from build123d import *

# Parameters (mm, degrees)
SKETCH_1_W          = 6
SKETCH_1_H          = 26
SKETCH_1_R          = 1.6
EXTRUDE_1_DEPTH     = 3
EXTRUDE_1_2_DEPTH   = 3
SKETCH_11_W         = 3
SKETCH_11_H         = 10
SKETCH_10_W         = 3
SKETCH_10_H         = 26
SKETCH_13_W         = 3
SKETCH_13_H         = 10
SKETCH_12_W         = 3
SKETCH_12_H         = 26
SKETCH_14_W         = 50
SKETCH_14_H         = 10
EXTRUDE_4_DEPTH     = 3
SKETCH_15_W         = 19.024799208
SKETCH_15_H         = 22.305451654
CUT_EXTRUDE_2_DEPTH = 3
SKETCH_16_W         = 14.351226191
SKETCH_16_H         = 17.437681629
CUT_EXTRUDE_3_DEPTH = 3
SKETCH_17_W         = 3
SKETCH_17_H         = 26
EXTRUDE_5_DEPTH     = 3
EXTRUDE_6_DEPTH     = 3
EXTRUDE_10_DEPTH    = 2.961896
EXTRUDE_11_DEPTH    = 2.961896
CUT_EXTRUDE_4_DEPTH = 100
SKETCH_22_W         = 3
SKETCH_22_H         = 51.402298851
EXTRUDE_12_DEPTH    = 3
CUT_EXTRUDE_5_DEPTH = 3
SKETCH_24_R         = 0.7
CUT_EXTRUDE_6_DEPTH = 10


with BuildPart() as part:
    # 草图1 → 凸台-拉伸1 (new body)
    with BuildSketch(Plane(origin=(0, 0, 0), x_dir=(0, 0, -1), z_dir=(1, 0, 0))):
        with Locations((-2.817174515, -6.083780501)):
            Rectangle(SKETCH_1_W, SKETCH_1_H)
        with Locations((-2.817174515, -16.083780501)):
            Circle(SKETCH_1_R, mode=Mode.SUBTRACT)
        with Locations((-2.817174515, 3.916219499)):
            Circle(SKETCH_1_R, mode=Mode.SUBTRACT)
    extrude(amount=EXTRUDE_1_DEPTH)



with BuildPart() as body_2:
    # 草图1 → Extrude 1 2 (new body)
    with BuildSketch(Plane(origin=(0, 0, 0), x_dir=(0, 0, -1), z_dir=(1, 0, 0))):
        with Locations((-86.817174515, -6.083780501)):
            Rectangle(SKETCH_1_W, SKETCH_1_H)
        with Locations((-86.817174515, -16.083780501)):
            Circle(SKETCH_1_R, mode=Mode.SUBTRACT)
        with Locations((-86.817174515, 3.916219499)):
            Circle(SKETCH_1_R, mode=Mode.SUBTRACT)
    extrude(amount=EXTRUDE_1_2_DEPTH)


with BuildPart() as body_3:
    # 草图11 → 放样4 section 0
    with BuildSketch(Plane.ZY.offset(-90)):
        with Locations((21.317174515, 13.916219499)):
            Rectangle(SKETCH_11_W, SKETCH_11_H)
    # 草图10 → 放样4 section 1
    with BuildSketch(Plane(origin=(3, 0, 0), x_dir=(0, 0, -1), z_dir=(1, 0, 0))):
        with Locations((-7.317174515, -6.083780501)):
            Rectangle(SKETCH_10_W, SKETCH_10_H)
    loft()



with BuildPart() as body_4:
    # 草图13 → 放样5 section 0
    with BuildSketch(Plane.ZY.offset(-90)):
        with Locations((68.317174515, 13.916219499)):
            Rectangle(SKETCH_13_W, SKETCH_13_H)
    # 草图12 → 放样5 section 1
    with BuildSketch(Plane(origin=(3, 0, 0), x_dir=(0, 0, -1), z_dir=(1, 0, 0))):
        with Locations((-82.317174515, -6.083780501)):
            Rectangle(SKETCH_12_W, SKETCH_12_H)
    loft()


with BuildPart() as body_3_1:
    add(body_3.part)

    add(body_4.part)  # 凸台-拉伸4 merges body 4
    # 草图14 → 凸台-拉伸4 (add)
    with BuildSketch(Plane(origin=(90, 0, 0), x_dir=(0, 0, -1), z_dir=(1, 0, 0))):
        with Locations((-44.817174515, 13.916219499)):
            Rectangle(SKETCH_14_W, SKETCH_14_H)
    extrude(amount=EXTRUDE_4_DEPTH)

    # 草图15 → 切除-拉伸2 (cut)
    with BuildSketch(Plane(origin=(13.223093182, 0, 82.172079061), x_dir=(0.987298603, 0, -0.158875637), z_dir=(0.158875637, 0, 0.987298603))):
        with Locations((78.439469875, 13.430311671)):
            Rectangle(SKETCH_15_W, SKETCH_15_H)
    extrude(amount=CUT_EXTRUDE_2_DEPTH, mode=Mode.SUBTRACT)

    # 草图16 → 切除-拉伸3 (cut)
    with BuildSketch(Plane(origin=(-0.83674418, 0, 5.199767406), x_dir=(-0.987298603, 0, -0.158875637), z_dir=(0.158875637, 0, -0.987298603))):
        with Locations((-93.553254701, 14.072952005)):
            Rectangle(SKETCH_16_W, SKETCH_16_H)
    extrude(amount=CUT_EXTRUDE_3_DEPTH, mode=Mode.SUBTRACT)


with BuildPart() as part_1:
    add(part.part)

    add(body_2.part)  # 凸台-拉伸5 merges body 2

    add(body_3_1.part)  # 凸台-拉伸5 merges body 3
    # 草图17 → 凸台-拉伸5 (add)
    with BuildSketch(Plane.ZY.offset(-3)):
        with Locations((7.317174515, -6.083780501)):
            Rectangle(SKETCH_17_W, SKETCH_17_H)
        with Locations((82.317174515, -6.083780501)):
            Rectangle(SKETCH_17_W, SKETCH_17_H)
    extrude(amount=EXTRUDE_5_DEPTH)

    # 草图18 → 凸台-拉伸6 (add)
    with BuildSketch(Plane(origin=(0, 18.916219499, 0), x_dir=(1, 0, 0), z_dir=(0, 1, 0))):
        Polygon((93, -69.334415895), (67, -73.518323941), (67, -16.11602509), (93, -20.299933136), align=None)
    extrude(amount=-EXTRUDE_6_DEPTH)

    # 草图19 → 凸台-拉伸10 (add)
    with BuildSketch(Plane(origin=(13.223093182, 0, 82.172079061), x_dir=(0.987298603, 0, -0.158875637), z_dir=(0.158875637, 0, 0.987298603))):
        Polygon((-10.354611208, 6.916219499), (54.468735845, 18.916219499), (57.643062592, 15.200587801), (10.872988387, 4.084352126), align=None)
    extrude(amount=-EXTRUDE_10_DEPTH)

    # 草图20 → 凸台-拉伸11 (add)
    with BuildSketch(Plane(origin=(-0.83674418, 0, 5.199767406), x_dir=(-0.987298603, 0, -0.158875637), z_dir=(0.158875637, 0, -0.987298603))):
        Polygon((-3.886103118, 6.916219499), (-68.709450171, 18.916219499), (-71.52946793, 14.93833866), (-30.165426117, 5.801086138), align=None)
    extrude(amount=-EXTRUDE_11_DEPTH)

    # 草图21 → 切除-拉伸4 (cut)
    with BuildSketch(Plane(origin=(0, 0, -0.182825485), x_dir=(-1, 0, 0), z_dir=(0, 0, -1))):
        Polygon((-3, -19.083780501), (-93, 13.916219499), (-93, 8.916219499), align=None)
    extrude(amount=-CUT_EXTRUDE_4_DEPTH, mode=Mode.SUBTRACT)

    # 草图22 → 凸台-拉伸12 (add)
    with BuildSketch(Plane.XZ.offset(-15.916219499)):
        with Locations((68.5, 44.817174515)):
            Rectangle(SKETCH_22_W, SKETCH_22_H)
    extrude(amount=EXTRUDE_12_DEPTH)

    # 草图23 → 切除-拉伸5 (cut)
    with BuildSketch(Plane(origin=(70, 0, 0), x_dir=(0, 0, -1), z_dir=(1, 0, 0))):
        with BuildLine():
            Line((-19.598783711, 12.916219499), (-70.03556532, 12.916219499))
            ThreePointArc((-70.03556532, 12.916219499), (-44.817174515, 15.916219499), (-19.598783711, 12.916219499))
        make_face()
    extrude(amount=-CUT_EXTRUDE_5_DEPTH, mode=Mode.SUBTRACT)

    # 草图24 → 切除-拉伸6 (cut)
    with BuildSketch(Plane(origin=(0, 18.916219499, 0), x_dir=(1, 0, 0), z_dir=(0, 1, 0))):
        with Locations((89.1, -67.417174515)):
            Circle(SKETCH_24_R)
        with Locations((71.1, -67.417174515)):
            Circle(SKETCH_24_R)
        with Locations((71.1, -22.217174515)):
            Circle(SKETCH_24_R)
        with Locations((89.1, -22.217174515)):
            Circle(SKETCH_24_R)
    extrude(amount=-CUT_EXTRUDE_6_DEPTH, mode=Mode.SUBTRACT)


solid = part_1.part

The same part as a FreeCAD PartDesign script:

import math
import FreeCAD as App
import Part
import Sketcher

V = App.Vector
Q = App.Units.Quantity

doc = App.newDocument("Part")
params = doc.addObject("Spreadsheet::Sheet", "Params")
for row, (alias, value) in enumerate([
    ("sketch1_diameter", "3.2 mm"),
    ("sketch1_width", "26 mm"),
    ("sketch1_height", "6 mm"),
    ("pad1_length", "3 mm"),
    ("sketch2_diameter", "3.2 mm"),
    ("sketch2_width", "26 mm"),
    ("sketch2_height", "6 mm"),
    ("pad2_length", "3 mm"),
    ("sketch3_width", "10 mm"),
    ("sketch3_height", "3 mm"),
    ("sketch4_width", "26 mm"),
    ("sketch4_height", "3 mm"),
    ("sketch5_width", "10 mm"),
    ("sketch5_height", "3 mm"),
    ("sketch6_width", "26 mm"),
    ("sketch6_height", "3 mm"),
    ("sketch7_width", "10 mm"),
    ("sketch7_height", "50 mm"),
    ("pad3_length", "3 mm"),
    ("pocket1_length", "3 mm"),
    ("pocket2_length", "3 mm"),
    ("sketch10_width", "26 mm"),
    ("sketch10_height", "3 mm"),
    ("pad4_length", "3 mm"),
    ("pad5_length", "3 mm"),
    ("pad6_length", "2.961896 mm"),
    ("pad7_length", "2.961896 mm"),
    ("sketch14_height", "5 mm"),
    ("pocket3_length", "100 mm"),
    ("sketch15_width", "3 mm"),
    ("pad8_length", "3 mm"),
    ("pocket4_length", "3 mm"),
    ("sketch17_diameter", "1.4 mm"),
    ("pocket5_length", "10 mm"),
], start=1):
    params.set(f"A{row}", alias)
    params.set(f"B{row}", "=" + value)
    params.setAlias(f"B{row}", alias)

body = doc.addObject("PartDesign::Body", "Body")

# Sketch on YZ plane
sketch1 = body.newObject("Sketcher::SketchObject", "Sketch")
sketch1.AttachmentSupport = (doc.getObject("YZ_Plane"), [""])
sketch1.MapMode = "FlatFace"
sketch1.addGeometry([
    Part.LineSegment(V(6.916219, 5.817175, 0), V(-19.083781, 5.817175, 0)),  # 0
    Part.LineSegment(V(-19.083781, 5.817175, 0), V(-19.083781, -0.182825, 0)),  # 1
    Part.LineSegment(V(-19.083781, -0.182825, 0), V(6.916219, -0.182825, 0)),  # 2
    Part.LineSegment(V(6.916219, -0.182825, 0), V(6.916219, 5.817175, 0)),  # 3
    Part.Circle(V(-16.083781, 2.817175, 0), V(0, 0, 1), 1.6),  # 4
    Part.Circle(V(3.916219, 2.817175, 0), V(0, 0, 1), 1.6),  # 5
], False)
sketch1.addConstraint([
    Sketcher.Constraint("Coincident", 0, 2, 1, 1),
    Sketcher.Constraint("Coincident", 1, 2, 2, 1),
    Sketcher.Constraint("Coincident", 2, 2, 3, 1),
    Sketcher.Constraint("Coincident", 3, 2, 0, 1),
    Sketcher.Constraint("Horizontal", 0),
    Sketcher.Constraint("Vertical", 1),
    Sketcher.Constraint("Horizontal", 2),
    Sketcher.Constraint("Vertical", 3),
    Sketcher.Constraint("Equal", 4, 5),
    Sketcher.Constraint("Horizontal", 4, 3, 5, 3),
    Sketcher.Constraint("Diameter", 4, Q("3.2 mm")),
    Sketcher.Constraint("DistanceX", 0, 2, 0, 1, Q("26 mm")),
    Sketcher.Constraint("DistanceY", 1, 2, 1, 1, Q("6 mm")),
    Sketcher.Constraint("DistanceX", 4, 3, 5, 3, Q("20 mm")),
    Sketcher.Constraint("DistanceX", 0, 2, 4, 3, Q("3 mm")),
    Sketcher.Constraint("DistanceY", 4, 3, 0, 2, Q("3 mm")),
    Sketcher.Constraint("DistanceX", 4, 3, -1, 1, Q("16.083781 mm")),
    Sketcher.Constraint("DistanceY", -1, 1, 4, 3, Q("2.817175 mm")),
])
sketch1.setExpression("Constraints[10]", "Params.sketch1_diameter")
sketch1.setExpression("Constraints[11]", "Params.sketch1_width")
sketch1.setExpression("Constraints[12]", "Params.sketch1_height")
pad1 = body.newObject("PartDesign::Pad", "Pad")
pad1.Profile = sketch1
pad1.setExpression("Length", "Params.pad1_length")
body2 = doc.addObject("PartDesign::Body", "Body001")

# Sketch on YZ plane
sketch2 = body2.newObject("Sketcher::SketchObject", "Sketch001")
sketch2.AttachmentSupport = (doc.getObject("YZ_Plane001"), [""])
sketch2.MapMode = "FlatFace"
sketch2.addGeometry([
    Part.LineSegment(V(6.916219, 89.817175, 0), V(-19.083781, 89.817175, 0)),  # 0
    Part.LineSegment(V(-19.083781, 89.817175, 0), V(-19.083781, 83.817175, 0)),  # 1
    Part.LineSegment(V(-19.083781, 83.817175, 0), V(6.916219, 83.817175, 0)),  # 2
    Part.LineSegment(V(6.916219, 83.817175, 0), V(6.916219, 89.817175, 0)),  # 3
    Part.Circle(V(-16.083781, 86.817175, 0), V(0, 0, 1), 1.6),  # 4
    Part.Circle(V(3.916219, 86.817175, 0), V(0, 0, 1), 1.6),  # 5
], False)
sketch2.addConstraint([
    Sketcher.Constraint("Coincident", 0, 2, 1, 1),
    Sketcher.Constraint("Coincident", 1, 2, 2, 1),
    Sketcher.Constraint("Coincident", 2, 2, 3, 1),
    Sketcher.Constraint("Coincident", 3, 2, 0, 1),
    Sketcher.Constraint("Horizontal", 0),
    Sketcher.Constraint("Vertical", 1),
    Sketcher.Constraint("Horizontal", 2),
    Sketcher.Constraint("Vertical", 3),
    Sketcher.Constraint("Equal", 4, 5),
    Sketcher.Constraint("Horizontal", 4, 3, 5, 3),
    Sketcher.Constraint("Diameter", 4, Q("3.2 mm")),
    Sketcher.Constraint("DistanceX", 0, 2, 0, 1, Q("26 mm")),
    Sketcher.Constraint("DistanceY", 1, 2, 1, 1, Q("6 mm")),
    Sketcher.Constraint("DistanceX", 4, 3, 5, 3, Q("20 mm")),
    Sketcher.Constraint("DistanceX", 0, 2, 4, 3, Q("3 mm")),
    Sketcher.Constraint("DistanceY", 4, 3, 0, 2, Q("3 mm")),
    Sketcher.Constraint("DistanceX", 4, 3, -1, 1, Q("16.083781 mm")),
    Sketcher.Constraint("DistanceY", -1, 1, 4, 3, Q("86.817175 mm")),
])
sketch2.setExpression("Constraints[10]", "Params.sketch2_diameter")
sketch2.setExpression("Constraints[11]", "Params.sketch2_width")
sketch2.setExpression("Constraints[12]", "Params.sketch2_height")
pad2 = body2.newObject("PartDesign::Pad", "Pad001")
pad2.Profile = sketch2
pad2.setExpression("Length", "Params.pad2_length")
body3 = doc.addObject("PartDesign::Body", "Body002")

# Sketch on YZ plane
sketch3 = body3.newObject("Sketcher::SketchObject", "Sketch002")
sketch3.AttachmentSupport = (doc.getObject("YZ_Plane002"), [""])
sketch3.MapMode = "FlatFace"
sketch3.AttachmentOffset = App.Placement(V(0, 0, 90), App.Rotation())
sketch3.addGeometry([
    Part.LineSegment(V(18.916219, 19.817175, 0), V(8.916219, 19.817175, 0)),
    Part.LineSegment(V(8.916219, 19.817175, 0), V(8.916219, 22.817175, 0)),
    Part.LineSegment(V(8.916219, 22.817175, 0), V(18.916219, 22.817175, 0)),
    Part.LineSegment(V(18.916219, 22.817175, 0), V(18.916219, 19.817175, 0)),
], False)
sketch3.addConstraint([
    Sketcher.Constraint("Coincident", 0, 2, 1, 1),
    Sketcher.Constraint("Coincident", 1, 2, 2, 1),
    Sketcher.Constraint("Coincident", 2, 2, 3, 1),
    Sketcher.Constraint("Coincident", 3, 2, 0, 1),
    Sketcher.Constraint("Horizontal", 0),
    Sketcher.Constraint("Vertical", 1),
    Sketcher.Constraint("Horizontal", 2),
    Sketcher.Constraint("Vertical", 3),
    Sketcher.Constraint("DistanceX", 0, 2, 0, 1, Q("10 mm")),
    Sketcher.Constraint("DistanceY", 1, 1, 1, 2, Q("3 mm")),
    Sketcher.Constraint("DistanceX", -1, 1, 0, 2, Q("8.916219 mm")),
    Sketcher.Constraint("DistanceY", -1, 1, 0, 2, Q("19.817175 mm")),
])
sketch3.setExpression("Constraints[8]", "Params.sketch3_width")
sketch3.setExpression("Constraints[9]", "Params.sketch3_height")

# Sketch on YZ plane
sketch4 = body3.newObject("Sketcher::SketchObject", "Sketch003")
sketch4.AttachmentSupport = (doc.getObject("YZ_Plane002"), [""])
sketch4.MapMode = "FlatFace"
sketch4.AttachmentOffset = App.Placement(V(0, 0, 3), App.Rotation())
sketch4.addGeometry([
    Part.LineSegment(V(6.916219, 8.817175, 0), V(-19.083781, 8.817175, 0)),
    Part.LineSegment(V(-19.083781, 8.817175, 0), V(-19.083781, 5.817175, 0)),
    Part.LineSegment(V(-19.083781, 5.817175, 0), V(6.916219, 5.817175, 0)),
    Part.LineSegment(V(6.916219, 5.817175, 0), V(6.916219, 8.817175, 0)),
], False)
sketch4.addConstraint([
    Sketcher.Constraint("Coincident", 0, 2, 1, 1),
    Sketcher.Constraint("Coincident", 1, 2, 2, 1),
    Sketcher.Constraint("Coincident", 2, 2, 3, 1),
    Sketcher.Constraint("Coincident", 3, 2, 0, 1),
    Sketcher.Constraint("Horizontal", 0),
    Sketcher.Constraint("Vertical", 1),
    Sketcher.Constraint("Horizontal", 2),
    Sketcher.Constraint("Vertical", 3),
    Sketcher.Constraint("DistanceX", 0, 2, 0, 1, Q("26 mm")),
    Sketcher.Constraint("DistanceY", 1, 2, 1, 1, Q("3 mm")),
    Sketcher.Constraint("DistanceX", 0, 2, -1, 1, Q("19.083781 mm")),
    Sketcher.Constraint("DistanceY", -1, 1, 0, 2, Q("8.817175 mm")),
])
sketch4.setExpression("Constraints[8]", "Params.sketch4_width")
sketch4.setExpression("Constraints[9]", "Params.sketch4_height")

additiveloft = body3.newObject("PartDesign::AdditiveLoft", "AdditiveLoft")
additiveloft.Profile = sketch3
additiveloft.Sections = [sketch4]
body4 = doc.addObject("PartDesign::Body", "Body003")

# Sketch on YZ plane
sketch5 = body4.newObject("Sketcher::SketchObject", "Sketch004")
sketch5.AttachmentSupport = (doc.getObject("YZ_Plane003"), [""])
sketch5.MapMode = "FlatFace"
sketch5.AttachmentOffset = App.Placement(V(0, 0, 90), App.Rotation())
sketch5.addGeometry([
    Part.LineSegment(V(18.916219, 66.817175, 0), V(8.916219, 66.817175, 0)),
    Part.LineSegment(V(8.916219, 66.817175, 0), V(8.916219, 69.817175, 0)),
    Part.LineSegment(V(8.916219, 69.817175, 0), V(18.916219, 69.817175, 0)),
    Part.LineSegment(V(18.916219, 69.817175, 0), V(18.916219, 66.817175, 0)),
], False)
sketch5.addConstraint([
    Sketcher.Constraint("Coincident", 0, 2, 1, 1),
    Sketcher.Constraint("Coincident", 1, 2, 2, 1),
    Sketcher.Constraint("Coincident", 2, 2, 3, 1),
    Sketcher.Constraint("Coincident", 3, 2, 0, 1),
    Sketcher.Constraint("Horizontal", 0),
    Sketcher.Constraint("Vertical", 1),
    Sketcher.Constraint("Horizontal", 2),
    Sketcher.Constraint("Vertical", 3),
    Sketcher.Constraint("DistanceX", 0, 2, 0, 1, Q("10 mm")),
    Sketcher.Constraint("DistanceY", 1, 1, 1, 2, Q("3 mm")),
    Sketcher.Constraint("DistanceX", -1, 1, 0, 2, Q("8.916219 mm")),
    Sketcher.Constraint("DistanceY", -1, 1, 0, 2, Q("66.817175 mm")),
])
sketch5.setExpression("Constraints[8]", "Params.sketch5_width")
sketch5.setExpression("Constraints[9]", "Params.sketch5_height")

# Sketch on YZ plane
sketch6 = body4.newObject("Sketcher::SketchObject", "Sketch005")
sketch6.AttachmentSupport = (doc.getObject("YZ_Plane003"), [""])
sketch6.MapMode = "FlatFace"
sketch6.AttachmentOffset = App.Placement(V(0, 0, 3), App.Rotation())
sketch6.addGeometry([
    Part.LineSegment(V(6.916219, 83.817175, 0), V(-19.083781, 83.817175, 0)),
    Part.LineSegment(V(-19.083781, 83.817175, 0), V(-19.083781, 80.817175, 0)),
    Part.LineSegment(V(-19.083781, 80.817175, 0), V(6.916219, 80.817175, 0)),
    Part.LineSegment(V(6.916219, 80.817175, 0), V(6.916219, 83.817175, 0)),
], False)
sketch6.addConstraint([
    Sketcher.Constraint("Coincident", 0, 2, 1, 1),
    Sketcher.Constraint("Coincident", 1, 2, 2, 1),
    Sketcher.Constraint("Coincident", 2, 2, 3, 1),
    Sketcher.Constraint("Coincident", 3, 2, 0, 1),
    Sketcher.Constraint("Horizontal", 0),
    Sketcher.Constraint("Vertical", 1),
    Sketcher.Constraint("Horizontal", 2),
    Sketcher.Constraint("Vertical", 3),
    Sketcher.Constraint("DistanceX", 0, 2, 0, 1, Q("26 mm")),
    Sketcher.Constraint("DistanceY", 1, 2, 1, 1, Q("3 mm")),
    Sketcher.Constraint("DistanceX", 0, 2, -1, 1, Q("19.083781 mm")),
    Sketcher.Constraint("DistanceY", -1, 1, 0, 2, Q("83.817175 mm")),
])
sketch6.setExpression("Constraints[8]", "Params.sketch6_width")
sketch6.setExpression("Constraints[9]", "Params.sketch6_height")

additiveloft2 = body4.newObject("PartDesign::AdditiveLoft", "AdditiveLoft001")
additiveloft2.Profile = sketch5
additiveloft2.Sections = [sketch6]
body3.AllowCompound = True
doc.recompute()

boolean = body3.newObject("PartDesign::Boolean", "Boolean")
boolean.Type = "Fuse"
boolean.addObjects([body4])

# Sketch on YZ plane
sketch7 = body3.newObject("Sketcher::SketchObject", "Sketch006")
sketch7.AttachmentSupport = (doc.getObject("YZ_Plane002"), [""])
sketch7.MapMode = "FlatFace"
sketch7.AttachmentOffset = App.Placement(V(0, 0, 90), App.Rotation())
sketch7.addGeometry([
    Part.LineSegment(V(18.916219, 69.817175, 0), V(8.916219, 69.817175, 0)),
    Part.LineSegment(V(8.916219, 69.817175, 0), V(8.916219, 19.817175, 0)),
    Part.LineSegment(V(8.916219, 19.817175, 0), V(18.916219, 19.817175, 0)),
    Part.LineSegment(V(18.916219, 19.817175, 0), V(18.916219, 69.817175, 0)),
], False)
sketch7.addConstraint([
    Sketcher.Constraint("Coincident", 0, 2, 1, 1),
    Sketcher.Constraint("Coincident", 1, 2, 2, 1),
    Sketcher.Constraint("Coincident", 2, 2, 3, 1),
    Sketcher.Constraint("Coincident", 3, 2, 0, 1),
    Sketcher.Constraint("Horizontal", 0),
    Sketcher.Constraint("Vertical", 1),
    Sketcher.Constraint("Horizontal", 2),
    Sketcher.Constraint("Vertical", 3),
    Sketcher.Constraint("DistanceX", 0, 2, 0, 1, Q("10 mm")),
    Sketcher.Constraint("DistanceY", 1, 2, 1, 1, Q("50 mm")),
    Sketcher.Constraint("DistanceX", -1, 1, 0, 2, Q("8.916219 mm")),
    Sketcher.Constraint("DistanceY", -1, 1, 0, 2, Q("69.817175 mm")),
])
sketch7.setExpression("Constraints[8]", "Params.sketch7_width")
sketch7.setExpression("Constraints[9]", "Params.sketch7_height")
pad3 = body3.newObject("PartDesign::Pad", "Pad002")
pad3.Profile = sketch7
pad3.setExpression("Length", "Params.pad3_length")

# Sketch on an angled plane
sketch8 = body3.newObject("Sketcher::SketchObject", "Sketch007")
sketch8.Placement = App.Placement(V(13.223093, 0, 82.172079), App.Rotation(V(0.987298603, 0, -0.158875637), V(0, 1, 0), V(0.158875637, 0, 0.987298603), "ZXY"))
sketch8.addGeometry([
    Part.LineSegment(V(68.92707, 24.583037, 0), V(68.92707, 2.277586, 0)),
    Part.LineSegment(V(68.92707, 2.277586, 0), V(87.951869, 2.277586, 0)),
    Part.LineSegment(V(87.951869, 2.277586, 0), V(87.951869, 24.583037, 0)),
    Part.LineSegment(V(87.951869, 24.583037, 0), V(68.92707, 24.583037, 0)),
], False)
sketch8.addConstraint([
    Sketcher.Constraint("Coincident", 0, 2, 1, 1),
    Sketcher.Constraint("Coincident", 1, 2, 2, 1),
    Sketcher.Constraint("Coincident", 2, 2, 3, 1),
    Sketcher.Constraint("Coincident", 3, 2, 0, 1),
    Sketcher.Constraint("Vertical", 0),
    Sketcher.Constraint("Horizontal", 1),
    Sketcher.Constraint("Vertical", 2),
    Sketcher.Constraint("Horizontal", 3),
    Sketcher.Constraint("DistanceX", 1, 1, 1, 2, Q("19.024799 mm")),
    Sketcher.Constraint("DistanceY", 0, 2, 0, 1, Q("22.305452 mm")),
    Sketcher.Constraint("DistanceX", -1, 1, 0, 2, Q("68.92707 mm")),
    Sketcher.Constraint("DistanceY", -1, 1, 0, 2, Q("2.277586 mm")),
])
pocket1 = body3.newObject("PartDesign::Pocket", "Pocket")
pocket1.Profile = sketch8
pocket1.setExpression("Length", "Params.pocket1_length")
pocket1.Reversed = True

# Sketch on an angled plane
sketch9 = body3.newObject("Sketcher::SketchObject", "Sketch008")
sketch9.Placement = App.Placement(V(-0.836744, 0, 5.199767), App.Rotation(V(-0.987298603, 0, -0.158875637), V(0, 1, 0), V(0.158875637, 0, -0.987298603), "ZXY"))
sketch9.addGeometry([
    Part.LineSegment(V(-100.728868, 22.791793, 0), V(-100.728868, 5.354111, 0)),
    Part.LineSegment(V(-100.728868, 5.354111, 0), V(-86.377642, 5.354111, 0)),
    Part.LineSegment(V(-86.377642, 5.354111, 0), V(-86.377642, 22.791793, 0)),
    Part.LineSegment(V(-86.377642, 22.791793, 0), V(-100.728868, 22.791793, 0)),
], False)
sketch9.addConstraint([
    Sketcher.Constraint("Coincident", 0, 2, 1, 1),
    Sketcher.Constraint("Coincident", 1, 2, 2, 1),
    Sketcher.Constraint("Coincident", 2, 2, 3, 1),
    Sketcher.Constraint("Coincident", 3, 2, 0, 1),
    Sketcher.Constraint("Vertical", 0),
    Sketcher.Constraint("Horizontal", 1),
    Sketcher.Constraint("Vertical", 2),
    Sketcher.Constraint("Horizontal", 3),
    Sketcher.Constraint("DistanceY", 0, 2, 0, 1, Q("17.437682 mm")),
    Sketcher.Constraint("DistanceX", 1, 1, 1, 2, Q("14.351226 mm")),
    Sketcher.Constraint("DistanceY", -1, 1, 0, 2, Q("5.354111 mm")),
    Sketcher.Constraint("DistanceX", 1, 2, -1, 1, Q("86.377642 mm")),
])
pocket2 = body3.newObject("PartDesign::Pocket", "Pocket001")
pocket2.Profile = sketch9
pocket2.setExpression("Length", "Params.pocket2_length")
pocket2.Reversed = True
body.AllowCompound = True
doc.recompute()

boolean2 = body.newObject("PartDesign::Boolean", "Boolean001")
boolean2.Type = "Fuse"
boolean2.addObjects([body2])
doc.recompute()

boolean3 = body.newObject("PartDesign::Boolean", "Boolean002")
boolean3.Type = "Fuse"
boolean3.addObjects([body3])

# Sketch on YZ plane
sketch10 = body.newObject("Sketcher::SketchObject", "Sketch009")
sketch10.AttachmentSupport = (doc.getObject("YZ_Plane"), [""])
sketch10.MapMode = "FlatFace"
sketch10.AttachmentOffset = App.Placement(V(0, 0, 3), App.Rotation())
sketch10.addGeometry([
    Part.LineSegment(V(6.916219, 5.817175, 0), V(-19.083781, 5.817175, 0)),  # 0
    Part.LineSegment(V(-19.083781, 5.817175, 0), V(-19.083781, 8.817175, 0)),  # 1
    Part.LineSegment(V(-19.083781, 8.817175, 0), V(6.916219, 8.817175, 0)),  # 2
    Part.LineSegment(V(6.916219, 8.817175, 0), V(6.916219, 5.817175, 0)),  # 3
    Part.LineSegment(V(6.916219, 80.817175, 0), V(-19.083781, 80.817175, 0)),  # 4
    Part.LineSegment(V(-19.083781, 80.817175, 0), V(-19.083781, 83.817175, 0)),  # 5
    Part.LineSegment(V(-19.083781, 83.817175, 0), V(6.916219, 83.817175, 0)),  # 6
    Part.LineSegment(V(6.916219, 83.817175, 0), V(6.916219, 80.817175, 0)),  # 7
], False)
sketch10.addConstraint([
    Sketcher.Constraint("Coincident", 0, 2, 1, 1),
    Sketcher.Constraint("Coincident", 1, 2, 2, 1),
    Sketcher.Constraint("Coincident", 2, 2, 3, 1),
    Sketcher.Constraint("Coincident", 3, 2, 0, 1),
    Sketcher.Constraint("Coincident", 4, 2, 5, 1),
    Sketcher.Constraint("Coincident", 5, 2, 6, 1),
    Sketcher.Constraint("Coincident", 6, 2, 7, 1),
    Sketcher.Constraint("Coincident", 7, 2, 4, 1),
    Sketcher.Constraint("Horizontal", 0),
    Sketcher.Constraint("Vertical", 1),
    Sketcher.Constraint("Horizontal", 2),
    Sketcher.Constraint("Vertical", 3),
    Sketcher.Constraint("Horizontal", 4),
    Sketcher.Constraint("Vertical", 5),
    Sketcher.Constraint("Horizontal", 6),
    Sketcher.Constraint("Vertical", 7),
    Sketcher.Constraint("Vertical", 1, 2, 4, 2),
    Sketcher.Constraint("Vertical", 3, 2, 6, 2),
    Sketcher.Constraint("Equal", 3, 5),
    Sketcher.Constraint("DistanceX", 0, 2, 0, 1, Q("26 mm")),
    Sketcher.Constraint("DistanceY", 1, 1, 1, 2, Q("3 mm")),
    Sketcher.Constraint("DistanceY", 1, 2, 4, 2, Q("72 mm")),
    Sketcher.Constraint("DistanceX", 0, 2, -1, 1, Q("19.083781 mm")),
    Sketcher.Constraint("DistanceY", -1, 1, 0, 2, Q("5.817175 mm")),
])
sketch10.setExpression("Constraints[19]", "Params.sketch10_width")
sketch10.setExpression("Constraints[20]", "Params.sketch10_height")
pad4 = body.newObject("PartDesign::Pad", "Pad003")
pad4.Profile = sketch10
pad4.setExpression("Length", "Params.pad4_length")
pad4.Reversed = True

# Sketch on XZ plane
sketch11 = body.newObject("Sketcher::SketchObject", "Sketch010")
sketch11.AttachmentSupport = (doc.getObject("XZ_Plane"), [""])
sketch11.MapMode = "FlatFace"
sketch11.AttachmentOffset = App.Placement(V(0, 0, -18.916219), App.Rotation())
sketch11.addGeometry([
    Part.LineSegment(V(67, 73.518324, 0), V(93, 69.334416, 0)),
    Part.LineSegment(V(93, 69.334416, 0), V(93, 20.299933, 0)),
    Part.LineSegment(V(93, 20.299933, 0), V(67, 16.116025, 0)),
    Part.LineSegment(V(67, 16.116025, 0), V(67, 73.518324, 0)),
], False)
sketch11.addConstraint([
    Sketcher.Constraint("Coincident", 0, 2, 1, 1),
    Sketcher.Constraint("Coincident", 1, 2, 2, 1),
    Sketcher.Constraint("Coincident", 2, 2, 3, 1),
    Sketcher.Constraint("Coincident", 3, 2, 0, 1),
    Sketcher.Constraint("Vertical", 1),
    Sketcher.Constraint("Vertical", 3),
    Sketcher.Constraint("Equal", 0, 2),
    Sketcher.Constraint("DistanceX", -1, 1, 0, 2, Q("93 mm")),
    Sketcher.Constraint("DistanceX", -1, 1, 2, 2, Q("67 mm")),
    Sketcher.Constraint("DistanceY", 3, 1, 3, 2, Q("57.402299 mm")),
    Sketcher.Constraint("DistanceY", 1, 2, 1, 1, Q("49.034483 mm")),
    Sketcher.Constraint("DistanceY", -1, 1, 0, 2, Q("69.334416 mm")),
])
pad5 = body.newObject("PartDesign::Pad", "Pad004")
pad5.Profile = sketch11
pad5.setExpression("Length", "Params.pad5_length")

# Sketch on an angled plane
sketch12 = body.newObject("Sketcher::SketchObject", "Sketch011")
sketch12.Placement = App.Placement(V(13.223093, 0, 82.172079), App.Rotation(V(0.987298603, 0, -0.158875637), V(0, 1, 0), V(0.158875637, 0, 0.987298603), "ZXY"))
sketch12.addGeometry([
    Part.LineSegment(V(54.468736, 18.916219, 0), V(-10.354611, 6.916219, 0)),
    Part.LineSegment(V(-10.354611, 6.916219, 0), V(10.872988, 4.084352, 0)),
    Part.LineSegment(V(10.872988, 4.084352, 0), V(57.643063, 15.200588, 0)),
    Part.LineSegment(V(57.643063, 15.200588, 0), V(54.468736, 18.916219, 0)),
], False)
sketch12.addConstraint([
    Sketcher.Constraint("Coincident", 0, 2, 1, 1),
    Sketcher.Constraint("Coincident", 1, 2, 2, 1),
    Sketcher.Constraint("Coincident", 2, 2, 3, 1),
    Sketcher.Constraint("Coincident", 3, 2, 0, 1),
    Sketcher.Constraint("DistanceY", 0, 2, 3, 2, Q("12 mm")),
    Sketcher.Constraint("Distance", 0, Q("65.924702 mm")),
    Sketcher.Constraint("DistanceX", 0, 2, 1, 2, Q("21.2276 mm")),
    Sketcher.Constraint("Distance", 1, Q("21.415659 mm")),
    Sketcher.Constraint("Distance", 2, Q("48.072971 mm")),
    Sketcher.Constraint("Distance", 3, Q("4.886949 mm")),
    Sketcher.Constraint("DistanceX", 0, 2, -1, 1, Q("10.354611 mm")),
    Sketcher.Constraint("DistanceY", -1, 1, 0, 2, Q("6.916219 mm")),
])
pad6 = body.newObject("PartDesign::Pad", "Pad005")
pad6.Profile = sketch12
pad6.setExpression("Length", "Params.pad6_length")
pad6.Reversed = True

# Sketch on an angled plane
sketch13 = body.newObject("Sketcher::SketchObject", "Sketch012")
sketch13.Placement = App.Placement(V(-0.836744, 0, 5.199767), App.Rotation(V(-0.987298603, 0, -0.158875637), V(0, 1, 0), V(0.158875637, 0, -0.987298603), "ZXY"))
sketch13.addGeometry([
    Part.LineSegment(V(-3.886103, 6.916219, 0), V(-68.70945, 18.916219, 0)),
    Part.LineSegment(V(-68.70945, 18.916219, 0), V(-71.529468, 14.938339, 0)),
    Part.LineSegment(V(-71.529468, 14.938339, 0), V(-30.165426, 5.801086, 0)),
    Part.LineSegment(V(-30.165426, 5.801086, 0), V(-3.886103, 6.916219, 0)),
], False)
sketch13.addConstraint([
    Sketcher.Constraint("Coincident", 0, 2, 1, 1),
    Sketcher.Constraint("Coincident", 1, 2, 2, 1),
    Sketcher.Constraint("Coincident", 2, 2, 3, 1),
    Sketcher.Constraint("Coincident", 3, 2, 0, 1),
    Sketcher.Constraint("DistanceY", 3, 2, 0, 2, Q("12 mm")),
    Sketcher.Constraint("Distance", 0, Q("65.924702 mm")),
    Sketcher.Constraint("DistanceX", 0, 2, -1, 1, Q("68.70945 mm")),
    Sketcher.Constraint("DistanceY", -1, 1, 0, 2, Q("18.916219 mm")),
    Sketcher.Constraint("DistanceY", -1, 1, 1, 2, Q("14.938339 mm")),
    Sketcher.Constraint("DistanceX", 1, 2, 2, 2, Q("41.364042 mm")),
    Sketcher.Constraint("Distance", 1, Q("4.876068 mm")),
    Sketcher.Constraint("Distance", 2, Q("42.361224 mm")),
])
pad7 = body.newObject("PartDesign::Pad", "Pad006")
pad7.Profile = sketch13
pad7.setExpression("Length", "Params.pad7_length")
pad7.Reversed = True

# Sketch on XY plane
sketch14 = body.newObject("Sketcher::SketchObject", "Sketch013")
sketch14.AttachmentSupport = (doc.getObject("XY_Plane"), [""])
sketch14.MapMode = "FlatFace"
sketch14.AttachmentOffset = App.Placement(V(0, 0, -0.182825), App.Rotation())
sketch14.addGeometry([
    Part.LineSegment(V(3, -19.083781, 0), V(93, 13.916219, 0)),
    Part.LineSegment(V(93, 13.916219, 0), V(93, 8.916219, 0)),
    Part.LineSegment(V(93, 8.916219, 0), V(3, -19.083781, 0)),
], False)
sketch14.addConstraint([
    Sketcher.Constraint("Coincident", 0, 2, 1, 1),
    Sketcher.Constraint("Coincident", 1, 2, 2, 1),
    Sketcher.Constraint("Coincident", 2, 2, 0, 1),
    Sketcher.Constraint("Vertical", 1),
    Sketcher.Constraint("DistanceY", 1, 2, 1, 1, Q("5 mm")),
    Sketcher.Constraint("DistanceX", -1, 1, 0, 2, Q("93 mm")),
    Sketcher.Constraint("DistanceX", -1, 1, 2, 2, Q("3 mm")),
    Sketcher.Constraint("DistanceY", 2, 2, 1, 2, Q("28 mm")),
    Sketcher.Constraint("DistanceY", -1, 1, 0, 2, Q("13.916219 mm")),
])
sketch14.setExpression("Constraints[4]", "Params.sketch14_height")
pocket3 = body.newObject("PartDesign::Pocket", "Pocket002")
pocket3.Profile = sketch14
pocket3.setExpression("Length", "Params.pocket3_length")
pocket3.Reversed = True

# Sketch on XZ plane
sketch15 = body.newObject("Sketcher::SketchObject", "Sketch014")
sketch15.AttachmentSupport = (doc.getObject("XZ_Plane"), [""])
sketch15.MapMode = "FlatFace"
sketch15.AttachmentOffset = App.Placement(V(0, 0, -15.916219), App.Rotation())
sketch15.addGeometry([
    Part.LineSegment(V(67, 70.518324, 0), V(67, 19.116025, 0)),
    Part.LineSegment(V(67, 19.116025, 0), V(70, 19.116025, 0)),
    Part.LineSegment(V(70, 19.116025, 0), V(70, 70.518324, 0)),
    Part.LineSegment(V(70, 70.518324, 0), V(67, 70.518324, 0)),
], False)
sketch15.addConstraint([
    Sketcher.Constraint("Coincident", 0, 2, 1, 1),
    Sketcher.Constraint("Coincident", 1, 2, 2, 1),
    Sketcher.Constraint("Coincident", 2, 2, 3, 1),
    Sketcher.Constraint("Coincident", 3, 2, 0, 1),
    Sketcher.Constraint("Vertical", 0),
    Sketcher.Constraint("Horizontal", 1),
    Sketcher.Constraint("Vertical", 2),
    Sketcher.Constraint("Horizontal", 3),
    Sketcher.Constraint("DistanceX", 1, 1, 1, 2, Q("3 mm")),
    Sketcher.Constraint("DistanceX", -1, 1, 0, 2, Q("67 mm")),
    Sketcher.Constraint("DistanceY", 0, 2, 0, 1, Q("51.402299 mm")),
    Sketcher.Constraint("DistanceY", -1, 1, 0, 2, Q("19.116025 mm")),
])
sketch15.setExpression("Constraints[8]", "Params.sketch15_width")
pad8 = body.newObject("PartDesign::Pad", "Pad007")
pad8.Profile = sketch15
pad8.setExpression("Length", "Params.pad8_length")

# Sketch on YZ plane
sketch16 = body.newObject("Sketcher::SketchObject", "Sketch015")
sketch16.AttachmentSupport = (doc.getObject("YZ_Plane"), [""])
sketch16.MapMode = "FlatFace"
sketch16.AttachmentOffset = App.Placement(V(0, 0, 70), App.Rotation())
sketch16.addGeometry([
    Part.LineSegment(V(12.916219, 70.035565, 0), V(12.916219, 19.598784, 0)),
    Part.ArcOfCircle(Part.Circle(V(-91.57832, 44.817175, 0), V(0, 0, 1), 107.494539), math.radians(-13.56814), math.radians(13.56814)),
], False)
sketch16.addConstraint([
    Sketcher.Constraint("Coincident", 0, 1, 1, 2),
    Sketcher.Constraint("Coincident", 1, 1, 0, 2),
    Sketcher.Constraint("Vertical", 0),
    Sketcher.Constraint("Radius", 1, Q("107.494539 mm")),
    Sketcher.Constraint("DistanceY", 0, 2, 0, 1, Q("50.436782 mm")),
    Sketcher.Constraint("DistanceX", 1, 3, -1, 1, Q("91.57832 mm")),
    Sketcher.Constraint("DistanceY", -1, 1, 1, 3, Q("44.817175 mm")),
])
pocket4 = body.newObject("PartDesign::Pocket", "Pocket003")
pocket4.Profile = sketch16
pocket4.setExpression("Length", "Params.pocket4_length")

# Sketch on XZ plane
sketch17 = body.newObject("Sketcher::SketchObject", "Sketch016")
sketch17.AttachmentSupport = (doc.getObject("XZ_Plane"), [""])
sketch17.MapMode = "FlatFace"
sketch17.AttachmentOffset = App.Placement(V(0, 0, -18.916219), App.Rotation())
sketch17.addGeometry([
    Part.Circle(V(89.1, 67.417175, 0), V(0, 0, 1), 0.7),
    Part.Circle(V(71.1, 67.417175, 0), V(0, 0, 1), 0.7),
    Part.Circle(V(71.1, 22.217175, 0), V(0, 0, 1), 0.7),
    Part.Circle(V(89.1, 22.217175, 0), V(0, 0, 1), 0.7),
], False)
sketch17.addConstraint([
    Sketcher.Constraint("Equal", 0, 1),
    Sketcher.Constraint("Equal", 1, 2),
    Sketcher.Constraint("Equal", 2, 3),
    Sketcher.Constraint("Horizontal", 0, 3, 1, 3),
    Sketcher.Constraint("Horizontal", 2, 3, 3, 3),
    Sketcher.Constraint("Vertical", 1, 3, 2, 3),
    Sketcher.Constraint("Vertical", 0, 3, 3, 3),
    Sketcher.Constraint("Diameter", 0, Q("1.4 mm")),
    Sketcher.Constraint("DistanceX", 1, 3, 0, 3, Q("18 mm")),
    Sketcher.Constraint("DistanceX", -1, 1, 0, 3, Q("89.1 mm")),
    Sketcher.Constraint("DistanceY", 2, 3, 1, 3, Q("45.2 mm")),
    Sketcher.Constraint("DistanceY", -1, 1, 0, 3, Q("67.417175 mm")),
])
sketch17.setExpression("Constraints[7]", "Params.sketch17_diameter")
pocket5 = body.newObject("PartDesign::Pocket", "Pocket004")
pocket5.Profile = sketch17
pocket5.setExpression("Length", "Params.pocket5_length")
pocket5.Reversed = True

doc.recompute()
